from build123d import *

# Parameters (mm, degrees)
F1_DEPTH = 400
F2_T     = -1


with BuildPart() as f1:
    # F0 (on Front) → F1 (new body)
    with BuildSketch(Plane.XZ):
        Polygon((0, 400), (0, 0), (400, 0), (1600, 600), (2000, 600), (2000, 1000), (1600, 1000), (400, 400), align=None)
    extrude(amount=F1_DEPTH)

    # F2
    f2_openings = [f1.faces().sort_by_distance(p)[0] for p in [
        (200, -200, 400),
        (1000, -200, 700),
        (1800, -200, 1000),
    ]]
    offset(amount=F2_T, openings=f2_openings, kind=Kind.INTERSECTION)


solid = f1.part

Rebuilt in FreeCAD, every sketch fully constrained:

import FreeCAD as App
import Part
import Sketcher
from FreeCAD import Vector


def faces_at(feature, points):
    """Names of the faces that lie closest to the given points."""
    faces = feature.Shape.Faces
    near = lambda p: min(range(len(faces)), key=lambda i: faces[i].distToShape(Part.Vertex(*p))[0])
    return sorted({f"Face{near(p) + 1}" for p in points})


def add_polygon(sketch, points):
    """Adds a closed chain of lines whose ends are joined by coincident constraints."""
    first, n = sketch.GeometryCount, len(points)
    for a, b in zip(points, points[1:] + points[:1]):
        sketch.addGeometry(Part.LineSegment(App.Vector(*a, 0), App.Vector(*b, 0)), False)
    for i in range(n):
        sketch.addConstraint(Sketcher.Constraint("Coincident", first + i, 2, first + (i + 1) % n, 1))

doc = App.newDocument("Part")
body = doc.addObject("PartDesign::Body", "Body")

# Sketch on XZ plane
sketch1 = doc.addObject("Sketcher::SketchObject", "Sketch")
body.addObject(sketch1)
sketch1.AttachmentSupport = (doc.XZ_Plane, [""])
sketch1.MapMode = "FlatFace"
add_polygon(sketch1, [(0, 400), (0, 0), (400, 0), (1600, 600), (2000, 600), (2000, 1000), (1600, 1000), (400, 400)])  # lines 0-7
sketch1.addConstraint([
    Sketcher.Constraint("Vertical", 0),
    Sketcher.Constraint("Horizontal", 1),
    Sketcher.Constraint("Horizontal", 3),
    Sketcher.Constraint("Vertical", 4),
    Sketcher.Constraint("Horizontal", 5),
    Sketcher.Constraint("Horizontal", 7),
    Sketcher.Constraint("Coincident", 0, 2, -1, 1),
    Sketcher.Constraint("Parallel", 2, 6),
    Sketcher.Constraint("Vertical", 2, 2, 5, 2),
    Sketcher.Constraint("Vertical", 1, 2, 6, 2),
    Sketcher.Constraint("Equal", 1, 3),
    Sketcher.Constraint("Equal", 7, 0),
    Sketcher.Constraint("DistanceX", 1, 1, 1, 2, 400.0),
    Sketcher.Constraint("DistanceX", -1, 1, 2, 2, 1600.0),
    Sketcher.Constraint("DistanceY", -1, 1, 2, 2, 600.0),
])
pad1 = doc.addObject("PartDesign::Pad", "Pad")
body.addObject(pad1)
pad1.Profile = sketch1
pad1.Length = 400
doc.recompute()

thickness = doc.addObject("PartDesign::Thickness", "Thickness")
body.addObject(thickness)
thickness.Base = (pad1, faces_at(pad1, [(200, -200, 400), (1000, -200, 700), (1800, -200, 1000)]))
thickness.Value = 1
thickness.Reversed = True
thickness.Join = "Intersection"

doc.recompute()
